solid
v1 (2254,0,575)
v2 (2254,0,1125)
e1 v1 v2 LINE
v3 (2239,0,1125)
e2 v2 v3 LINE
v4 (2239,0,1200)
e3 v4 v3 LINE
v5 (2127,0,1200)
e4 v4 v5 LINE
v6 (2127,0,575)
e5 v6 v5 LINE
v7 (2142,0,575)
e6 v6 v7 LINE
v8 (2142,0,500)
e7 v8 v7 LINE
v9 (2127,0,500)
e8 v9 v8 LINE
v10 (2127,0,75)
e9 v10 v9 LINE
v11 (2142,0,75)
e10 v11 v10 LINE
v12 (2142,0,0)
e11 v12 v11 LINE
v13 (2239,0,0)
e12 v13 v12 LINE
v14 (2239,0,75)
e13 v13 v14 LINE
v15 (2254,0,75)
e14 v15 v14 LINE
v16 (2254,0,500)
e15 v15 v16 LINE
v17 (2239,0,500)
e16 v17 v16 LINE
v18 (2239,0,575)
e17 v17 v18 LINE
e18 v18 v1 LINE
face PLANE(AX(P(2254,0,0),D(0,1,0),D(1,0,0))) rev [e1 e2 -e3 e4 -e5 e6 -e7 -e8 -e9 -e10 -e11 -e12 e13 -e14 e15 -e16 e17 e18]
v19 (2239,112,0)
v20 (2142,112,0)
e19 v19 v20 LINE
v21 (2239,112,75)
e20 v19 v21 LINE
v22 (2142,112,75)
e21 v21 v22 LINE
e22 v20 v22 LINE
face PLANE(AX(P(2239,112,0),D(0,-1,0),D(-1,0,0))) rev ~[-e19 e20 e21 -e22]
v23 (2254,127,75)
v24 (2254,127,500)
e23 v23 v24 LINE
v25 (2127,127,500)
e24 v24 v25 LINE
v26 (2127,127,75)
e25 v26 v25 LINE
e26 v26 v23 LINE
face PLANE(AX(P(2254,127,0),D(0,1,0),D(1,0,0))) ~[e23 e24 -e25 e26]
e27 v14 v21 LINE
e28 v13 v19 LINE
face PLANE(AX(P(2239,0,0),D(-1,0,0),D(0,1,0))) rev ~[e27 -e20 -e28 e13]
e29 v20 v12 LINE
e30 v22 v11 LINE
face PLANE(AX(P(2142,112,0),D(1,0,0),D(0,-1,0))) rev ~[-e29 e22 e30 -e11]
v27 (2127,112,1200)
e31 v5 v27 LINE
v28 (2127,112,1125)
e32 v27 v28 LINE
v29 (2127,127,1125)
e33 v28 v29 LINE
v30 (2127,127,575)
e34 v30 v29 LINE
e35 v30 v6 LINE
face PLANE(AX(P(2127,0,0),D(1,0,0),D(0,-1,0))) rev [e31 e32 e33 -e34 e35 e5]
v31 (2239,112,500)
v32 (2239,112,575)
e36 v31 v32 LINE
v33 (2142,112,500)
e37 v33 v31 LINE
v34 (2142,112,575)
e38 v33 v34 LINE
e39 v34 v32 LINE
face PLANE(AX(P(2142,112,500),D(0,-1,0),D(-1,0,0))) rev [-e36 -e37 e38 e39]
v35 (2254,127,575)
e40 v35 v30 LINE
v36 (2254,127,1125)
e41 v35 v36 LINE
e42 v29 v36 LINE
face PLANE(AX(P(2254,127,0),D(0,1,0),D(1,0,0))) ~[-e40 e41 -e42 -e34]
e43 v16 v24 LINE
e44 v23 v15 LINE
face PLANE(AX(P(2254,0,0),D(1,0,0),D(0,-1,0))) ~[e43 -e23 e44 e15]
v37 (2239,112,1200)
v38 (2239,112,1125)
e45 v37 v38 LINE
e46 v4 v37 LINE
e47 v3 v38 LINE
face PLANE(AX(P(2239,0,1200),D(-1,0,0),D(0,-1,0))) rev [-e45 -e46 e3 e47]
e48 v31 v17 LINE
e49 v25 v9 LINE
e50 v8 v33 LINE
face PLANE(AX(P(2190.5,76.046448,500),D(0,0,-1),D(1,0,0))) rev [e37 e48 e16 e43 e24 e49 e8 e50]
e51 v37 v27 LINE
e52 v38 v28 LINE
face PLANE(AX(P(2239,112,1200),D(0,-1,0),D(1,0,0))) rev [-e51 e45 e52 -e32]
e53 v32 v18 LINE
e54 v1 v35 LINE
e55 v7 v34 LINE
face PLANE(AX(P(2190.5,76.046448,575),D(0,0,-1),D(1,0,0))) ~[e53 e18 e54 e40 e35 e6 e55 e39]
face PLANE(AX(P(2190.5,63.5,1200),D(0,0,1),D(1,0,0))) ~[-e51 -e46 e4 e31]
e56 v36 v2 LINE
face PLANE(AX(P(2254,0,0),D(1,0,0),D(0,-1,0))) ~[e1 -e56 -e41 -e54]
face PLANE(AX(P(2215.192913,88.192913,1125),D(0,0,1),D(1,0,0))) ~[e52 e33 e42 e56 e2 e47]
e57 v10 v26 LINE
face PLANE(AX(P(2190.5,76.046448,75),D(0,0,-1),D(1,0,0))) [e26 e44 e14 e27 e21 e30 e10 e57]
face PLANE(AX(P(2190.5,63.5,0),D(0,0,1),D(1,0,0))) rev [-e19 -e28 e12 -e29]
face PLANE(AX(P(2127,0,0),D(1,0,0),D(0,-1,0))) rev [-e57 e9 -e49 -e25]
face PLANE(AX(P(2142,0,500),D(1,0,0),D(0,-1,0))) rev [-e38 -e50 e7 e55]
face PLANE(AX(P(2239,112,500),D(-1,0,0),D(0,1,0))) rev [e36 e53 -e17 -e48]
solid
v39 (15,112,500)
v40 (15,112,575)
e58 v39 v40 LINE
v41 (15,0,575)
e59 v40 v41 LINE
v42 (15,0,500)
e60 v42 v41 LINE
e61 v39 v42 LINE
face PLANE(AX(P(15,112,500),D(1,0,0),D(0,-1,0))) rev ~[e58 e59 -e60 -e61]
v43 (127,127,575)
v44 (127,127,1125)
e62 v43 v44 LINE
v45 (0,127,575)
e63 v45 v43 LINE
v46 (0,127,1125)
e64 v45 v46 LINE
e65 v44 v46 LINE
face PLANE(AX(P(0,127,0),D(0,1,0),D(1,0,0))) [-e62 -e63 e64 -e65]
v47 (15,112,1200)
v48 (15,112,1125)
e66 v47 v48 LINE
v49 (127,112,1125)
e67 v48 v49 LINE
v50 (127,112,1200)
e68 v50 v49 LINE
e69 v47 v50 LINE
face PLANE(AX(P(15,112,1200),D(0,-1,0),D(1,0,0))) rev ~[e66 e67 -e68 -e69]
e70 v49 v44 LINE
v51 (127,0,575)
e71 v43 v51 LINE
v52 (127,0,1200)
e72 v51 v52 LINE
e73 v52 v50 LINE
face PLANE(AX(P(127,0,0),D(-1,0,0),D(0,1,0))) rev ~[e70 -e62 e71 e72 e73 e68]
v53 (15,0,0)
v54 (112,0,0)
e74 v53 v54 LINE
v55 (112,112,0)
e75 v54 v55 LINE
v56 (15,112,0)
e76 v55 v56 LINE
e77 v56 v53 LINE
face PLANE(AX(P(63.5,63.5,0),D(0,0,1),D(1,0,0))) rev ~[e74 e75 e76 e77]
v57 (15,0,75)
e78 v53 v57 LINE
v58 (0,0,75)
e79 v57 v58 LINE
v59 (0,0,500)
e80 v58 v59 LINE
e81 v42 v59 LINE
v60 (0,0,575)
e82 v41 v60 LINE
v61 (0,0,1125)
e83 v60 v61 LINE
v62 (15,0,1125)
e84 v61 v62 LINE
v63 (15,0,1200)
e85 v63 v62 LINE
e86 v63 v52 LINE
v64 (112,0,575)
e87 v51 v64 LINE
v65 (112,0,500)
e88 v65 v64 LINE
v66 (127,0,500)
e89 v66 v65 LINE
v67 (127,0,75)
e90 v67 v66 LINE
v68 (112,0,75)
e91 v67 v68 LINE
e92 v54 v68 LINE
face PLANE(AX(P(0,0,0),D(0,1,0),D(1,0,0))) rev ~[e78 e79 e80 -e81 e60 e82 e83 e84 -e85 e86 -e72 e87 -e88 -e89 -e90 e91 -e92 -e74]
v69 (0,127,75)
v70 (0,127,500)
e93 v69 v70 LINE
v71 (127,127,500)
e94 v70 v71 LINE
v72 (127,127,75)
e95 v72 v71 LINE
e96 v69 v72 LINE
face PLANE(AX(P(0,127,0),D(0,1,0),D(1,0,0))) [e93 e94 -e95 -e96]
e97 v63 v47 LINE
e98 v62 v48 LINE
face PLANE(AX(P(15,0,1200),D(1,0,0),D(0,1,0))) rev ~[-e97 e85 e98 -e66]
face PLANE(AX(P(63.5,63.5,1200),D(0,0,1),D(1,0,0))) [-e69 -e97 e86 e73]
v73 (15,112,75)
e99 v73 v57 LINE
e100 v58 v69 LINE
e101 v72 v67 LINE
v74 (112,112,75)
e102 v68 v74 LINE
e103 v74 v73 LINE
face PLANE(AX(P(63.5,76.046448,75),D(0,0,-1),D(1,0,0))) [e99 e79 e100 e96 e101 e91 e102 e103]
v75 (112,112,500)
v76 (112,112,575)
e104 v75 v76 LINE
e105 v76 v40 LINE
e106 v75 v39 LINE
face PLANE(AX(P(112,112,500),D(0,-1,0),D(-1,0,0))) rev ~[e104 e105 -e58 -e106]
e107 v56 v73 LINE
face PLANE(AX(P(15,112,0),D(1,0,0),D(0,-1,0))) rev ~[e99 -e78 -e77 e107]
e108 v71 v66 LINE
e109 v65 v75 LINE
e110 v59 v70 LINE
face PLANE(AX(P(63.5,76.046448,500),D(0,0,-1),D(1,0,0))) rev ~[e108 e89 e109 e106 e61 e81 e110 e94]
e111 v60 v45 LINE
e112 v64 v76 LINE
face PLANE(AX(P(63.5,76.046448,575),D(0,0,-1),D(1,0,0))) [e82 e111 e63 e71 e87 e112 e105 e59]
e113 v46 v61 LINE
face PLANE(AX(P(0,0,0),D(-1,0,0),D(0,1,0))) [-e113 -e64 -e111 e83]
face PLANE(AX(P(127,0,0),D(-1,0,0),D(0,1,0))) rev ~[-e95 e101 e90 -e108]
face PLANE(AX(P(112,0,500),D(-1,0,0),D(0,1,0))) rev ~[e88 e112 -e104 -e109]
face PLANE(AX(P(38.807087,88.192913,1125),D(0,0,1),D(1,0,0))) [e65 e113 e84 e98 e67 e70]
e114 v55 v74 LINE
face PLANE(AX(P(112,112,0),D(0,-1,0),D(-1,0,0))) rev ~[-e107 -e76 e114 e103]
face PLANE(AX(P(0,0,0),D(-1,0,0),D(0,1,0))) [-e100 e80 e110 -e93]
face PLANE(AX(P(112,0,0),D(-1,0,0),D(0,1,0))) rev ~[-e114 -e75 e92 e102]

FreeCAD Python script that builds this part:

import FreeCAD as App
import Part
import Sketcher
Q = App.Units.Quantity

doc = App.newDocument("Part")
body = doc.addObject("PartDesign::Body", "Body")

# Sketch on XY plane
sketch1 = body.newObject("Sketcher::SketchObject", "Sketch")
sketch1.AttachmentSupport = (doc.getObject("XY_Plane"), [""])
sketch1.MapMode = "FlatFace"
sketch1.addGeometry(Part.LineSegment(App.Vector(0, 127, 0), App.Vector(0, 0, 0)), False)
sketch1.addGeometry(Part.LineSegment(App.Vector(0, 0, 0), App.Vector(127, 0, 0)), False)
sketch1.addGeometry(Part.LineSegment(App.Vector(127, 0, 0), App.Vector(127, 127, 0)), False)
sketch1.addGeometry(Part.LineSegment(App.Vector(127, 127, 0), App.Vector(0, 127, 0)), False)
sketch1.addConstraint(Sketcher.Constraint("Coincident", 0, 2, 1, 1))
sketch1.addConstraint(Sketcher.Constraint("Coincident", 1, 2, 2, 1))
sketch1.addConstraint(Sketcher.Constraint("Coincident", 2, 2, 3, 1))
sketch1.addConstraint(Sketcher.Constraint("Coincident", 3, 2, 0, 1))
sketch1.addConstraint(Sketcher.Constraint("Vertical", 0))
sketch1.addConstraint(Sketcher.Constraint("Horizontal", 1))
sketch1.addConstraint(Sketcher.Constraint("Vertical", 2))
sketch1.addConstraint(Sketcher.Constraint("Horizontal", 3))
sketch1.addConstraint(Sketcher.Constraint("Coincident", 0, 2, -1, 1))
sketch1.addConstraint(Sketcher.Constraint("Equal", 3, 0))
sketch1.addConstraint(Sketcher.Constraint("DistanceX", 1, 1, 1, 2, Q("127 mm")))
pad1 = body.newObject("PartDesign::Pad", "Pad")
pad1.Profile = sketch1
pad1.Length = 1200

# Sketch on XY plane
sketch2 = body.newObject("Sketcher::SketchObject", "Sketch001")
sketch2.AttachmentSupport = (doc.getObject("XY_Plane"), [""])
sketch2.MapMode = "FlatFace"
sketch2.AttachmentOffset = App.Placement(App.Vector(0, 0, 1200), App.Rotation())
sketch2.addGeometry(Part.LineSegment(App.Vector(0, 127, 0), App.Vector(0, 0, 0)), False)
sketch2.addGeometry(Part.LineSegment(App.Vector(0, 0, 0), App.Vector(15, 0, 0)), False)
sketch2.addGeometry(Part.LineSegment(App.Vector(15, 0, 0), App.Vector(15, 112, 0)), False)
sketch2.addGeometry(Part.LineSegment(App.Vector(15, 112, 0), App.Vector(127, 112, 0)), False)
sketch2.addGeometry(Part.LineSegment(App.Vector(127, 112, 0), App.Vector(127, 127, 0)), False)
sketch2.addGeometry(Part.LineSegment(App.Vector(127, 127, 0), App.Vector(0, 127, 0)), False)
sketch2.addConstraint(Sketcher.Constraint("Coincident", 0, 2, 1, 1))
sketch2.addConstraint(Sketcher.Constraint("Coincident", 1, 2, 2, 1))
sketch2.addConstraint(Sketcher.Constraint("Coincident", 2, 2, 3, 1))
sketch2.addConstraint(Sketcher.Constraint("Coincident", 3, 2, 4, 1))
sketch2.addConstraint(Sketcher.Constraint("Coincident", 4, 2, 5, 1))
sketch2.addConstraint(Sketcher.Constraint("Coincident", 5, 2, 0, 1))
sketch2.addConstraint(Sketcher.Constraint("Vertical", 0))
sketch2.addConstraint(Sketcher.Constraint("Horizontal", 1))
sketch2.addConstraint(Sketcher.Constraint("Vertical", 2))
sketch2.addConstraint(Sketcher.Constraint("Horizontal", 3))
sketch2.addConstraint(Sketcher.Constraint("Vertical", 4))
sketch2.addConstraint(Sketcher.Constraint("Horizontal", 5))
sketch2.addConstraint(Sketcher.Constraint("Coincident", 0, 2, -1, 1))
sketch2.addConstraint(Sketcher.Constraint("Equal", 5, 0))
sketch2.addConstraint(Sketcher.Constraint("Equal", 3, 2))
sketch2.addConstraint(Sketcher.Constraint("DistanceX", 1, 1, 1, 2, Q("15 mm")))
sketch2.addConstraint(Sketcher.Constraint("DistanceX", 3, 1, 3, 2, Q("112 mm")))
pocket1 = body.newObject("PartDesign::Pocket", "Pocket")
pocket1.Profile = sketch2
pocket1.Length = 75

# Sketch on XY plane
sketch3 = body.newObject("Sketcher::SketchObject", "Sketch002")
sketch3.AttachmentSupport = (doc.getObject("XY_Plane"), [""])
sketch3.MapMode = "FlatFace"
sketch3.AttachmentOffset = App.Placement(App.Vector(0, 0, 500), App.Rotation())
sketch3.addGeometry(Part.LineSegment(App.Vector(15, 0, 0), App.Vector(0, 0, 0)), False)
sketch3.addGeometry(Part.LineSegment(App.Vector(0, 0, 0), App.Vector(0, 127, 0)), False)
sketch3.addGeometry(Part.LineSegment(App.Vector(0, 127, 0), App.Vector(127, 127, 0)), False)
sketch3.addGeometry(Part.LineSegment(App.Vector(127, 127, 0), App.Vector(127, 0, 0)), False)
sketch3.addGeometry(Part.LineSegment(App.Vector(127, 0, 0), App.Vector(112, 0, 0)), False)
sketch3.addGeometry(Part.LineSegment(App.Vector(112, 0, 0), App.Vector(112, 112, 0)), False)
sketch3.addGeometry(Part.LineSegment(App.Vector(112, 112, 0), App.Vector(15, 112, 0)), False)
sketch3.addGeometry(Part.LineSegment(App.Vector(15, 112, 0), App.Vector(15, 0, 0)), False)
sketch3.addConstraint(Sketcher.Constraint("Coincident", 0, 2, 1, 1))
sketch3.addConstraint(Sketcher.Constraint("Coincident", 1, 2, 2, 1))
sketch3.addConstraint(Sketcher.Constraint("Coincident", 2, 2, 3, 1))
sketch3.addConstraint(Sketcher.Constraint("Coincident", 3, 2, 4, 1))
sketch3.addConstraint(Sketcher.Constraint("Coincident", 4, 2, 5, 1))
sketch3.addConstraint(Sketcher.Constraint("Coincident", 5, 2, 6, 1))
sketch3.addConstraint(Sketcher.Constraint("Coincident", 6, 2, 7, 1))
sketch3.addConstraint(Sketcher.Constraint("Coincident", 7, 2, 0, 1))
sketch3.addConstraint(Sketcher.Constraint("Horizontal", 0))
sketch3.addConstraint(Sketcher.Constraint("Vertical", 1))
sketch3.addConstraint(Sketcher.Constraint("Horizontal", 2))
sketch3.addConstraint(Sketcher.Constraint("Vertical", 3))
sketch3.addConstraint(Sketcher.Constraint("Horizontal", 4))
sketch3.addConstraint(Sketcher.Constraint("Vertical", 5))
sketch3.addConstraint(Sketcher.Constraint("Horizontal", 6))
sketch3.addConstraint(Sketcher.Constraint("Vertical", 7))
sketch3.addConstraint(Sketcher.Constraint("Coincident", 0, 2, -1, 1))
sketch3.addConstraint(Sketcher.Constraint("PointOnObject", 3, 2, -1))
sketch3.addConstraint(Sketcher.Constraint("Equal", 0, 4))
sketch3.addConstraint(Sketcher.Constraint("Equal", 2, 1))
sketch3.addConstraint(Sketcher.Constraint("DistanceX", 0, 2, 0, 1, Q("15 mm")))
sketch3.addConstraint(Sketcher.Constraint("DistanceX", 2, 1, 2, 2, Q("127 mm")))
sketch3.addConstraint(Sketcher.Constraint("DistanceY", 5, 1, 5, 2, Q("112 mm")))
pocket2 = body.newObject("PartDesign::Pocket", "Pocket001")
pocket2.Profile = sketch3
pocket2.Length = 75
pocket2.Reversed = True
body2 = doc.addObject("PartDesign::Body", "Body001")
doc.recompute()

mirroring = doc.addObject("Part::Mirroring", "Mirroring")
mirroring.Source = body
mirroring.Base = App.Vector(1127, 0, 0)
mirroring.Normal = App.Vector(1, 0, 0)
body2.BaseFeature = mirroring
doc.recompute()

# Sketch on XY plane
sketch4 = body2.newObject("Sketcher::SketchObject", "Sketch003")
sketch4.AttachmentSupport = (doc.getObject("XY_Plane001"), [""])
sketch4.MapMode = "FlatFace"
sketch4.addGeometry(Part.LineSegment(App.Vector(2254, 127, 0), App.Vector(2254, 0, 0)), False)
sketch4.addGeometry(Part.LineSegment(App.Vector(2254, 0, 0), App.Vector(2239, 0, 0)), False)
sketch4.addGeometry(Part.LineSegment(App.Vector(2239, 0, 0), App.Vector(2239, 112, 0)), False)
sketch4.addGeometry(Part.LineSegment(App.Vector(2239, 112, 0), App.Vector(2142, 112, 0)), False)
sketch4.addGeometry(Part.LineSegment(App.Vector(2142, 112, 0), App.Vector(2142, 0, 0)), False)
sketch4.addGeometry(Part.LineSegment(App.Vector(2142, 0, 0), App.Vector(2127, 0, 0)), False)
sketch4.addGeometry(Part.LineSegment(App.Vector(2127, 0, 0), App.Vector(2127, 127, 0)), False)
sketch4.addGeometry(Part.LineSegment(App.Vector(2127, 127, 0), App.Vector(2254, 127, 0)), False)
sketch4.addConstraint(Sketcher.Constraint("Coincident", 0, 2, 1, 1))
sketch4.addConstraint(Sketcher.Constraint("Coincident", 1, 2, 2, 1))
sketch4.addConstraint(Sketcher.Constraint("Coincident", 2, 2, 3, 1))
sketch4.addConstraint(Sketcher.Constraint("Coincident", 3, 2, 4, 1))
sketch4.addConstraint(Sketcher.Constraint("Coincident", 4, 2, 5, 1))
sketch4.addConstraint(Sketcher.Constraint("Coincident", 5, 2, 6, 1))
sketch4.addConstraint(Sketcher.Constraint("Coincident", 6, 2, 7, 1))
sketch4.addConstraint(Sketcher.Constraint("Coincident", 7, 2, 0, 1))
sketch4.addConstraint(Sketcher.Constraint("Vertical", 0))
sketch4.addConstraint(Sketcher.Constraint("Horizontal", 1))
sketch4.addConstraint(Sketcher.Constraint("Vertical", 2))
sketch4.addConstraint(Sketcher.Constraint("Horizontal", 3))
sketch4.addConstraint(Sketcher.Constraint("Vertical", 4))
sketch4.addConstraint(Sketcher.Constraint("Horizontal", 5))
sketch4.addConstraint(Sketcher.Constraint("Vertical", 6))
sketch4.addConstraint(Sketcher.Constraint("Horizontal", 7))
sketch4.addConstraint(Sketcher.Constraint("PointOnObject", 0, 2, -1))
sketch4.addConstraint(Sketcher.Constraint("PointOnObject", 4, 2, -1))
sketch4.addConstraint(Sketcher.Constraint("Equal", 1, 5))
sketch4.addConstraint(Sketcher.Constraint("Equal", 7, 0))
sketch4.addConstraint(Sketcher.Constraint("DistanceX", 1, 2, 1, 1, Q("15 mm")))
sketch4.addConstraint(Sketcher.Constraint("DistanceX", 3, 2, 3, 1, Q("97 mm")))
sketch4.addConstraint(Sketcher.Constraint("DistanceY", 2, 1, 2, 2, Q("112 mm")))
sketch4.addConstraint(Sketcher.Constraint("DistanceX", -1, 1, 0, 2, Q("2254 mm")))
pocket3 = body2.newObject("PartDesign::Pocket", "Pocket002")
pocket3.Profile = sketch4
pocket3.Length = 75
pocket3.Reversed = True

# Sketch on XY plane
sketch5 = body.newObject("Sketcher::SketchObject", "Sketch004")
sketch5.AttachmentSupport = (doc.getObject("XY_Plane"), [""])
sketch5.MapMode = "FlatFace"
sketch5.addGeometry(Part.LineSegment(App.Vector(127, 127, 0), App.Vector(127, 0, 0)), False)
sketch5.addGeometry(Part.LineSegment(App.Vector(127, 0, 0), App.Vector(112, 0, 0)), False)
sketch5.addGeometry(Part.LineSegment(App.Vector(112, 0, 0), App.Vector(112, 112, 0)), False)
sketch5.addGeometry(Part.LineSegment(App.Vector(112, 112, 0), App.Vector(15, 112, 0)), False)
sketch5.addGeometry(Part.LineSegment(App.Vector(15, 112, 0), App.Vector(15, 0, 0)), False)
sketch5.addGeometry(Part.LineSegment(App.Vector(15, 0, 0), App.Vector(0, 0, 0)), False)
sketch5.addGeometry(Part.LineSegment(App.Vector(0, 0, 0), App.Vector(0, 127, 0)), False)
sketch5.addGeometry(Part.LineSegment(App.Vector(0, 127, 0), App.Vector(127, 127, 0)), False)
sketch5.addConstraint(Sketcher.Constraint("Coincident", 0, 2, 1, 1))
sketch5.addConstraint(Sketcher.Constraint("Coincident", 1, 2, 2, 1))
sketch5.addConstraint(Sketcher.Constraint("Coincident", 2, 2, 3, 1))
sketch5.addConstraint(Sketcher.Constraint("Coincident", 3, 2, 4, 1))
sketch5.addConstraint(Sketcher.Constraint("Coincident", 4, 2, 5, 1))
sketch5.addConstraint(Sketcher.Constraint("Coincident", 5, 2, 6, 1))
sketch5.addConstraint(Sketcher.Constraint("Coincident", 6, 2, 7, 1))
sketch5.addConstraint(Sketcher.Constraint("Coincident", 7, 2, 0, 1))
sketch5.addConstraint(Sketcher.Constraint("Vertical", 0))
sketch5.addConstraint(Sketcher.Constraint("Horizontal", 1))
sketch5.addConstraint(Sketcher.Constraint("Vertical", 2))
sketch5.addConstraint(Sketcher.Constraint("Horizontal", 3))
sketch5.addConstraint(Sketcher.Constraint("Vertical", 4))
sketch5.addConstraint(Sketcher.Constraint("Horizontal", 5))
sketch5.addConstraint(Sketcher.Constraint("Vertical", 6))
sketch5.addConstraint(Sketcher.Constraint("Horizontal", 7))
sketch5.addConstraint(Sketcher.Constraint("Coincident", 5, 2, -1, 1))
sketch5.addConstraint(Sketcher.Constraint("PointOnObject", 0, 2, -1))
sketch5.addConstraint(Sketcher.Constraint("Equal", 1, 5))
sketch5.addConstraint(Sketcher.Constraint("Equal", 7, 0))
sketch5.addConstraint(Sketcher.Constraint("DistanceX", 1, 2, 1, 1, Q("15 mm")))
sketch5.addConstraint(Sketcher.Constraint("DistanceX", 3, 2, 3, 1, Q("97 mm")))
sketch5.addConstraint(Sketcher.Constraint("DistanceY", 2, 1, 2, 2, Q("112 mm")))
pocket4 = body.newObject("PartDesign::Pocket", "Pocket003")
pocket4.Profile = sketch5
pocket4.Length = 75
pocket4.Reversed = True
mirroring.Visibility = False

doc.recompute()
